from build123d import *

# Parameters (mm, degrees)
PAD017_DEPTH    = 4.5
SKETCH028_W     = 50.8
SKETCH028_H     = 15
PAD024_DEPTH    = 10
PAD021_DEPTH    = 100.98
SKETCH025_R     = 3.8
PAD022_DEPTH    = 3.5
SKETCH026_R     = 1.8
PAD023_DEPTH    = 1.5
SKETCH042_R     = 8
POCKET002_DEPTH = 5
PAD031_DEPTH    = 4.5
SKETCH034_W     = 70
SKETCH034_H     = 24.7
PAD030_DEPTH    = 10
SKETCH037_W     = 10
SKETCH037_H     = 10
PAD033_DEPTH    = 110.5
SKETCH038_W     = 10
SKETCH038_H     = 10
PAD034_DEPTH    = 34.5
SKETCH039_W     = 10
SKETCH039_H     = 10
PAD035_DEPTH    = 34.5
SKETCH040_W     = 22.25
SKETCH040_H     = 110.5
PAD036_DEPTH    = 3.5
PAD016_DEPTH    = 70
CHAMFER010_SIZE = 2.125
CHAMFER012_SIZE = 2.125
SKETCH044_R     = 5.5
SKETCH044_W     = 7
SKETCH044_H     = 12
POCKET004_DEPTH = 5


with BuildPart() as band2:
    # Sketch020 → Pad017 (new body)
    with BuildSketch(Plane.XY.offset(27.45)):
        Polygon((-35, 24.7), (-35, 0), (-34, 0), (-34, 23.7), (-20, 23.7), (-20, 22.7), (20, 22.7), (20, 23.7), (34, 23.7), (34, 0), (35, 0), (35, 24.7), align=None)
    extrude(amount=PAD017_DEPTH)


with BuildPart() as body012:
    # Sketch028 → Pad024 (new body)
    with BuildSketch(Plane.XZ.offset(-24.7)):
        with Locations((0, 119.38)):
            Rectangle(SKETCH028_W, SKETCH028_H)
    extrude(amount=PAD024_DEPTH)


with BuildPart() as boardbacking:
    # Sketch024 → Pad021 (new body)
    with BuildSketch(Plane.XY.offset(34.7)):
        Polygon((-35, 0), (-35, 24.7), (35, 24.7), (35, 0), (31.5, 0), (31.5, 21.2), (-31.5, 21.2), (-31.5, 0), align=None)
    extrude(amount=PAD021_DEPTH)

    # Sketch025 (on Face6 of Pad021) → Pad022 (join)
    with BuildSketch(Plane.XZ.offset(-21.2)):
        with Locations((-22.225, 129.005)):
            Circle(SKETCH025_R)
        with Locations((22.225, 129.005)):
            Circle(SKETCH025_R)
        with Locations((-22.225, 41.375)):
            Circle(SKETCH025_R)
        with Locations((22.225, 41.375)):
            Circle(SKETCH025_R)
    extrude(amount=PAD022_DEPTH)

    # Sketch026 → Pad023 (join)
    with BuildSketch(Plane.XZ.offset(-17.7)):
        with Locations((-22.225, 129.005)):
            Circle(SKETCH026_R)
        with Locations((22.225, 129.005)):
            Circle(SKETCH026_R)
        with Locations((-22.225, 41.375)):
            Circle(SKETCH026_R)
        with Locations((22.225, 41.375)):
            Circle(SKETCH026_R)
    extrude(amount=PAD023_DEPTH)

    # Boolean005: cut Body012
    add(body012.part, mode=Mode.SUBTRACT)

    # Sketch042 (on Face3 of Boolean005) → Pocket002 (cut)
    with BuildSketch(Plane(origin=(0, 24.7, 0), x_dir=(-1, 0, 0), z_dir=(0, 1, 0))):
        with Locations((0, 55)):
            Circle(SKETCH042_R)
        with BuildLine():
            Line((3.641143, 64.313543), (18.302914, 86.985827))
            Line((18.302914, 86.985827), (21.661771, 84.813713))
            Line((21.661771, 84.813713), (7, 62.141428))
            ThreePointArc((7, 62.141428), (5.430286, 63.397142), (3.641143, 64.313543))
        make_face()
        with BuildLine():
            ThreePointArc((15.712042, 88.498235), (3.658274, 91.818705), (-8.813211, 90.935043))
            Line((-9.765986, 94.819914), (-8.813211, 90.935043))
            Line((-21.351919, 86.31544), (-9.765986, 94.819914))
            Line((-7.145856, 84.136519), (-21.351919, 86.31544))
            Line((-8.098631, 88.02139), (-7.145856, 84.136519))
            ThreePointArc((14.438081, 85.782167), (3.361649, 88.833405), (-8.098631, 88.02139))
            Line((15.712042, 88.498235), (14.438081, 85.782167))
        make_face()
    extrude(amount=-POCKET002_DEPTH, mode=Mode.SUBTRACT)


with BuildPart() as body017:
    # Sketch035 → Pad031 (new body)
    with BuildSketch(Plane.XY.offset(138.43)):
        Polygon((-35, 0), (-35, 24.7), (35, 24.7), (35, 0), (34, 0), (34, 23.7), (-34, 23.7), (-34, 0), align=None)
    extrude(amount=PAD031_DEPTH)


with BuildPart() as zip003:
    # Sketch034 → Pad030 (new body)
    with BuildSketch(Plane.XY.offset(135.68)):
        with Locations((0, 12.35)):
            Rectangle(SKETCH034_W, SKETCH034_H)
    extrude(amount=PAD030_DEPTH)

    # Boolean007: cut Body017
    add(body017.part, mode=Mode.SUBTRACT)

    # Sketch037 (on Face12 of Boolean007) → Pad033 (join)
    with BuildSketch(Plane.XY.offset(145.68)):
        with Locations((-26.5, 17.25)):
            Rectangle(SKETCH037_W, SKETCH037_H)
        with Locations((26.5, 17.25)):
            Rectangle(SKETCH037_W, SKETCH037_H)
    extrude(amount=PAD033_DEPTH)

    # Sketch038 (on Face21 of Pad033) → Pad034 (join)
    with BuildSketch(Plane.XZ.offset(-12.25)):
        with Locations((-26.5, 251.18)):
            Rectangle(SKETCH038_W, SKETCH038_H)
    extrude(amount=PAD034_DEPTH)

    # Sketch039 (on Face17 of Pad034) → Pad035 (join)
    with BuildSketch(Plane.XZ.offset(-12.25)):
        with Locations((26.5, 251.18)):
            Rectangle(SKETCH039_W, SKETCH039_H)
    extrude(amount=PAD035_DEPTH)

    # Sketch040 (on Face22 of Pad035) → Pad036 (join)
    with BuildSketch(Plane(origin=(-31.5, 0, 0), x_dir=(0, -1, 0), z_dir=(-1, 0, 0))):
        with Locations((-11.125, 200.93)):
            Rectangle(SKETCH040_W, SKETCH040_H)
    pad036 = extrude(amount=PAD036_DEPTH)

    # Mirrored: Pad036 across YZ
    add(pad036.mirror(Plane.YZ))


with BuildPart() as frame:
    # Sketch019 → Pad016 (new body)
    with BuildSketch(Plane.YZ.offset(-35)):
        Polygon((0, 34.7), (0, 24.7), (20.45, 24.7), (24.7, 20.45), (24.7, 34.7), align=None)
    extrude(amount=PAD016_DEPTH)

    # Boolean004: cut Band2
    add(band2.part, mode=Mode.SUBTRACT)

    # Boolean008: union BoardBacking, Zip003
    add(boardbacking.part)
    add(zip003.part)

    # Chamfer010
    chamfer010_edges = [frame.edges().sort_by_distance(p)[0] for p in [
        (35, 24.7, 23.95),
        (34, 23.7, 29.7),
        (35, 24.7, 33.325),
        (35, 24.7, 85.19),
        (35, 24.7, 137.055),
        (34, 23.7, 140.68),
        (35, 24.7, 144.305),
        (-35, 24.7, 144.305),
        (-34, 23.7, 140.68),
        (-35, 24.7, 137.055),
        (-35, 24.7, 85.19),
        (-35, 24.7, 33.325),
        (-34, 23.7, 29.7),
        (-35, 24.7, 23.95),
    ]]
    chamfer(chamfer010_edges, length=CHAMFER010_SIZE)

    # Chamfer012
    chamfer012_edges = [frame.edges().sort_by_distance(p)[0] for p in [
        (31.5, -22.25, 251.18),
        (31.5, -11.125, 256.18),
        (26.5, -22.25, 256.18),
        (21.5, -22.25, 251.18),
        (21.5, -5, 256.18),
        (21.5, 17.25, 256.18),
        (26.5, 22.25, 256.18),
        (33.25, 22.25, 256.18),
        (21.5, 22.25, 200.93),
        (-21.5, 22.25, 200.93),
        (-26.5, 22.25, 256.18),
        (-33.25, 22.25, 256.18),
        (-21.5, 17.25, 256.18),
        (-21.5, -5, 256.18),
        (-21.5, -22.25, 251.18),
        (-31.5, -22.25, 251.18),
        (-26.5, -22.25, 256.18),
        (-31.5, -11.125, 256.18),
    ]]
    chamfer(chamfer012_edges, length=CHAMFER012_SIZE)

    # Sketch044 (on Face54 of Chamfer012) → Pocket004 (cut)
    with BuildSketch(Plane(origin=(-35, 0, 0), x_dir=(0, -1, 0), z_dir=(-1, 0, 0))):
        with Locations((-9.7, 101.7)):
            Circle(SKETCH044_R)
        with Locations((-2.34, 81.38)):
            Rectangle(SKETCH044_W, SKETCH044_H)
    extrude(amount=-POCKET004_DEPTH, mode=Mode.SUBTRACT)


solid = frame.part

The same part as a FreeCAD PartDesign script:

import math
import FreeCAD as App
import Part
import Sketcher
from FreeCAD import Vector
Q = App.Units.Quantity


def edges_at(feature, points):
    """Names of the edges that pass closest to the given points."""
    edges = feature.Shape.Edges
    near = lambda p: min(range(len(edges)), key=lambda i: edges[i].distToShape(Part.Vertex(*p))[0])
    return sorted({f"Edge{near(p) + 1}" for p in points})

doc = App.newDocument("Part")
body = doc.addObject("PartDesign::Body", "Body")

# Sketch on XY plane
sketch1 = body.newObject("Sketcher::SketchObject", "Sketch")
sketch1.AttachmentSupport = (doc.getObject("XY_Plane"), [""])
sketch1.MapMode = "FlatFace"
sketch1.AttachmentOffset = App.Placement(Vector(0, 0, 27.45), App.Rotation())
sketch1.addGeometry(Part.LineSegment(Vector(-35, 24.7, 0), Vector(-35, 0, 0)), False)
sketch1.addGeometry(Part.LineSegment(Vector(-35, 0, 0), Vector(-34, 0, 0)), False)
sketch1.addGeometry(Part.LineSegment(Vector(-34, 0, 0), Vector(-34, 23.7, 0)), False)
sketch1.addGeometry(Part.LineSegment(Vector(-34, 23.7, 0), Vector(-20, 23.7, 0)), False)
sketch1.addGeometry(Part.LineSegment(Vector(-20, 23.7, 0), Vector(-20, 22.7, 0)), False)
sketch1.addGeometry(Part.LineSegment(Vector(-20, 22.7, 0), Vector(20, 22.7, 0)), False)
sketch1.addGeometry(Part.LineSegment(Vector(20, 22.7, 0), Vector(20, 23.7, 0)), False)
sketch1.addGeometry(Part.LineSegment(Vector(20, 23.7, 0), Vector(34, 23.7, 0)), False)
sketch1.addGeometry(Part.LineSegment(Vector(34, 23.7, 0), Vector(34, 0, 0)), False)
sketch1.addGeometry(Part.LineSegment(Vector(34, 0, 0), Vector(35, 0, 0)), False)
sketch1.addGeometry(Part.LineSegment(Vector(35, 0, 0), Vector(35, 24.7, 0)), False)
sketch1.addGeometry(Part.LineSegment(Vector(35, 24.7, 0), Vector(-35, 24.7, 0)), False)
sketch1.addConstraint(Sketcher.Constraint("Coincident", 0, 2, 1, 1))
sketch1.addConstraint(Sketcher.Constraint("Coincident", 1, 2, 2, 1))
sketch1.addConstraint(Sketcher.Constraint("Coincident", 2, 2, 3, 1))
sketch1.addConstraint(Sketcher.Constraint("Coincident", 3, 2, 4, 1))
sketch1.addConstraint(Sketcher.Constraint("Coincident", 4, 2, 5, 1))
sketch1.addConstraint(Sketcher.Constraint("Coincident", 5, 2, 6, 1))
sketch1.addConstraint(Sketcher.Constraint("Coincident", 6, 2, 7, 1))
sketch1.addConstraint(Sketcher.Constraint("Coincident", 7, 2, 8, 1))
sketch1.addConstraint(Sketcher.Constraint("Coincident", 8, 2, 9, 1))
sketch1.addConstraint(Sketcher.Constraint("Coincident", 9, 2, 10, 1))
sketch1.addConstraint(Sketcher.Constraint("Coincident", 10, 2, 11, 1))
sketch1.addConstraint(Sketcher.Constraint("Coincident", 11, 2, 0, 1))
sketch1.addConstraint(Sketcher.Constraint("Vertical", 0))
sketch1.addConstraint(Sketcher.Constraint("Horizontal", 1))
sketch1.addConstraint(Sketcher.Constraint("Vertical", 2))
sketch1.addConstraint(Sketcher.Constraint("Horizontal", 3))
sketch1.addConstraint(Sketcher.Constraint("Vertical", 4))
sketch1.addConstraint(Sketcher.Constraint("Horizontal", 5))
sketch1.addConstraint(Sketcher.Constraint("Vertical", 6))
sketch1.addConstraint(Sketcher.Constraint("Horizontal", 7))
sketch1.addConstraint(Sketcher.Constraint("Vertical", 8))
sketch1.addConstraint(Sketcher.Constraint("Horizontal", 9))
sketch1.addConstraint(Sketcher.Constraint("Vertical", 10))
sketch1.addConstraint(Sketcher.Constraint("Horizontal", 11))
sketch1.addConstraint(Sketcher.Constraint("Symmetric", 1, 2, 8, 2, -1, 1))
sketch1.addConstraint(Sketcher.Constraint("Symmetric", 3, 2, 6, 2, -2))
sketch1.addConstraint(Sketcher.Constraint("Symmetric", 0, 2, 9, 2, -2))
sketch1.addConstraint(Sketcher.Constraint("Equal", 9, 4))
sketch1.addConstraint(Sketcher.Constraint("DistanceX", 1, 1, 1, 2, Q("1 mm")))
sketch1.addConstraint(Sketcher.Constraint("DistanceX", 3, 1, 3, 2, Q("14 mm")))
sketch1.addConstraint(Sketcher.Constraint("DistanceX", 5, 1, 5, 2, Q("40 mm")))
sketch1.addConstraint(Sketcher.Constraint("DistanceY", 0, 2, 0, 1, Q("24.7 mm")))
sketch1.addConstraint(Sketcher.Constraint("DistanceY", 2, 1, 2, 2, Q("23.7 mm")))
pad1 = body.newObject("PartDesign::Pad", "Pad")
pad1.Profile = sketch1
pad1.Length = 4.5
body2 = doc.addObject("PartDesign::Body", "Body001")

# Sketch on XZ plane
sketch2 = body2.newObject("Sketcher::SketchObject", "Sketch001")
sketch2.AttachmentSupport = (doc.getObject("XZ_Plane001"), [""])
sketch2.MapMode = "FlatFace"
sketch2.AttachmentOffset = App.Placement(Vector(0, 0, -24.7), App.Rotation())
sketch2.addGeometry(Part.LineSegment(Vector(-25, 127, 0), Vector(-25, 112, 0)), False)
sketch2.addGeometry(Part.LineSegment(Vector(-25, 112, 0), Vector(25, 112, 0)), False)
sketch2.addGeometry(Part.LineSegment(Vector(25, 112, 0), Vector(25, 127, 0)), False)
sketch2.addGeometry(Part.LineSegment(Vector(25, 127, 0), Vector(-25, 127, 0)), False)
sketch2.addConstraint(Sketcher.Constraint("Coincident", 0, 2, 1, 1))
sketch2.addConstraint(Sketcher.Constraint("Coincident", 1, 2, 2, 1))
sketch2.addConstraint(Sketcher.Constraint("Coincident", 2, 2, 3, 1))
sketch2.addConstraint(Sketcher.Constraint("Coincident", 3, 2, 0, 1))
sketch2.addConstraint(Sketcher.Constraint("Vertical", 0))
sketch2.addConstraint(Sketcher.Constraint("Horizontal", 1))
sketch2.addConstraint(Sketcher.Constraint("Vertical", 2))
sketch2.addConstraint(Sketcher.Constraint("Horizontal", 3))
sketch2.addConstraint(Sketcher.Constraint("DistanceY", 0, 2, 0, 1, Q("15 mm")))
sketch2.addConstraint(Sketcher.Constraint("DistanceX", 1, 1, 1, 2, Q("50.8 mm")))
sketch2.addConstraint(Sketcher.Constraint("DistanceX", 0, 2, -1, 1, Q("25.4 mm")))
sketch2.addConstraint(Sketcher.Constraint("DistanceY", -1, 1, 0, 2, Q("111.88 mm")))
pad2 = body2.newObject("PartDesign::Pad", "Pad001")
pad2.Profile = sketch2
pad2.Length = 10
body3 = doc.addObject("PartDesign::Body", "Body002")

# Sketch on XY plane
sketch3 = body3.newObject("Sketcher::SketchObject", "Sketch002")
sketch3.AttachmentSupport = (doc.getObject("XY_Plane002"), [""])
sketch3.MapMode = "FlatFace"
sketch3.AttachmentOffset = App.Placement(Vector(0, 0, 34.7), App.Rotation())
sketch3.addGeometry(Part.LineSegment(Vector(-35, 24.7, 0), Vector(-35, 0, 0)), False)
sketch3.addGeometry(Part.LineSegment(Vector(-35, 0, 0), Vector(-31.5, 0, 0)), False)
sketch3.addGeometry(Part.LineSegment(Vector(-31.5, 0, 0), Vector(-31.5, 21.2, 0)), False)
sketch3.addGeometry(Part.LineSegment(Vector(-31.5, 21.2, 0), Vector(31.5, 21.2, 0)), False)
sketch3.addGeometry(Part.LineSegment(Vector(31.5, 21.2, 0), Vector(31.5, 0, 0)), False)
sketch3.addGeometry(Part.LineSegment(Vector(31.5, 0, 0), Vector(35, 0, 0)), False)
sketch3.addGeometry(Part.LineSegment(Vector(35, 0, 0), Vector(35, 24.7, 0)), False)
sketch3.addGeometry(Part.LineSegment(Vector(35, 24.7, 0), Vector(-35, 24.7, 0)), False)
sketch3.addConstraint(Sketcher.Constraint("Coincident", 0, 2, 1, 1))
sketch3.addConstraint(Sketcher.Constraint("Coincident", 1, 2, 2, 1))
sketch3.addConstraint(Sketcher.Constraint("Coincident", 2, 2, 3, 1))
sketch3.addConstraint(Sketcher.Constraint("Coincident", 3, 2, 4, 1))
sketch3.addConstraint(Sketcher.Constraint("Coincident", 4, 2, 5, 1))
sketch3.addConstraint(Sketcher.Constraint("Coincident", 5, 2, 6, 1))
sketch3.addConstraint(Sketcher.Constraint("Coincident", 6, 2, 7, 1))
sketch3.addConstraint(Sketcher.Constraint("Coincident", 7, 2, 0, 1))
sketch3.addConstraint(Sketcher.Constraint("Vertical", 0))
sketch3.addConstraint(Sketcher.Constraint("Horizontal", 1))
sketch3.addConstraint(Sketcher.Constraint("Vertical", 2))
sketch3.addConstraint(Sketcher.Constraint("Horizontal", 3))
sketch3.addConstraint(Sketcher.Constraint("Vertical", 4))
sketch3.addConstraint(Sketcher.Constraint("Horizontal", 5))
sketch3.addConstraint(Sketcher.Constraint("Vertical", 6))
sketch3.addConstraint(Sketcher.Constraint("Horizontal", 7))
sketch3.addConstraint(Sketcher.Constraint("Symmetric", 1, 2, 4, 2, -1, 1))
sketch3.addConstraint(Sketcher.Constraint("Symmetric", 0, 2, 5, 2, -2))
sketch3.addConstraint(Sketcher.Constraint("DistanceX", 3, 1, 3, 2, Q("63 mm")))
sketch3.addConstraint(Sketcher.Constraint("DistanceX", 7, 2, 7, 1, Q("70 mm")))
sketch3.addConstraint(Sketcher.Constraint("DistanceY", 0, 2, 0, 1, Q("24.7 mm")))
sketch3.addConstraint(Sketcher.Constraint("DistanceY", 2, 1, 2, 2, Q("21.2 mm")))
pad3 = body3.newObject("PartDesign::Pad", "Pad002")
pad3.Profile = sketch3
pad3.Length = 100.98

# Sketch on XZ plane
sketch4 = body3.newObject("Sketcher::SketchObject", "Sketch003")
sketch4.AttachmentSupport = (doc.getObject("XZ_Plane002"), [""])
sketch4.MapMode = "FlatFace"
sketch4.AttachmentOffset = App.Placement(Vector(0, 0, -21.2), App.Rotation())
sketch4.addGeometry(Part.Circle(Vector(-22.2, 129, 0), Vector(0, 0, 1), 3.8), False)
sketch4.addGeometry(Part.Circle(Vector(22.2, 129, 0), Vector(0, 0, 1), 3.8), False)
sketch4.addGeometry(Part.Circle(Vector(-22.2, 41.4, 0), Vector(0, 0, 1), 3.8), False)
sketch4.addGeometry(Part.Circle(Vector(22.2, 41.4, 0), Vector(0, 0, 1), 3.8), False)
sketch4.addConstraint(Sketcher.Constraint("Equal", 0, 1))
sketch4.addConstraint(Sketcher.Constraint("Equal", 1, 2))
sketch4.addConstraint(Sketcher.Constraint("Equal", 2, 3))
sketch4.addConstraint(Sketcher.Constraint("Symmetric", 0, 3, 1, 3, -2))
sketch4.addConstraint(Sketcher.Constraint("Symmetric", 2, 3, 3, 3, -2))
sketch4.addConstraint(Sketcher.Constraint("Vertical", 0, 3, 2, 3))
sketch4.addConstraint(Sketcher.Constraint("Diameter", 0, Q("7.6 mm")))
sketch4.addConstraint(Sketcher.Constraint("DistanceX", 0, 3, 1, 3, Q("44.45 mm")))
sketch4.addConstraint(Sketcher.Constraint("DistanceY", 2, 3, 0, 3, Q("87.63 mm")))
sketch4.addConstraint(Sketcher.Constraint("DistanceY", -1, 1, 0, 3, Q("129.005 mm")))
pad4 = body3.newObject("PartDesign::Pad", "Pad003")
pad4.Profile = sketch4
pad4.Length = 3.5

# Sketch on XZ plane
sketch5 = body3.newObject("Sketcher::SketchObject", "Sketch004")
sketch5.AttachmentSupport = (doc.getObject("XZ_Plane002"), [""])
sketch5.MapMode = "FlatFace"
sketch5.AttachmentOffset = App.Placement(Vector(0, 0, -17.7), App.Rotation())
sketch5.addGeometry(Part.Circle(Vector(-22.2, 129, 0), Vector(0, 0, 1), 1.8), False)
sketch5.addGeometry(Part.Circle(Vector(22.2, 129, 0), Vector(0, 0, 1), 1.8), False)
sketch5.addGeometry(Part.Circle(Vector(-22.2, 41.4, 0), Vector(0, 0, 1), 1.8), False)
sketch5.addGeometry(Part.Circle(Vector(22.2, 41.4, 0), Vector(0, 0, 1), 1.8), False)
sketch5.addConstraint(Sketcher.Constraint("Equal", 0, 1))
sketch5.addConstraint(Sketcher.Constraint("Equal", 1, 2))
sketch5.addConstraint(Sketcher.Constraint("Equal", 2, 3))
sketch5.addConstraint(Sketcher.Constraint("Symmetric", 0, 3, 1, 3, -2))
sketch5.addConstraint(Sketcher.Constraint("Symmetric", 2, 3, 3, 3, -2))
sketch5.addConstraint(Sketcher.Constraint("Vertical", 0, 3, 2, 3))
sketch5.addConstraint(Sketcher.Constraint("Diameter", 0, Q("3.6 mm")))
sketch5.addConstraint(Sketcher.Constraint("DistanceX", 0, 3, 1, 3, Q("44.45 mm")))
sketch5.addConstraint(Sketcher.Constraint("DistanceY", 2, 3, 0, 3, Q("87.63 mm")))
sketch5.addConstraint(Sketcher.Constraint("DistanceY", -1, 1, 0, 3, Q("129.005 mm")))
pad5 = body3.newObject("PartDesign::Pad", "Pad004")
pad5.Profile = sketch5
pad5.Length = 1.5
doc.recompute()

boolean = body3.newObject("PartDesign::Boolean", "Boolean")
boolean.Type = "Cut"
boolean.addObjects([body2])

# Sketch on XZ plane
sketch6 = body3.newObject("Sketcher::SketchObject", "Sketch005")
sketch6.AttachmentSupport = (doc.getObject("XZ_Plane002"), [""])
sketch6.MapMode = "FlatFace"
sketch6.AttachmentOffset = App.Placement(Vector(0, 0, -24.7), App.Rotation())
sketch6.addGeometry(Part.Circle(Vector(0, 55, 0), Vector(0, 0, 1), 8), False)
sketch6.addGeometry(Part.LineSegment(Vector(-18.3, 87, 0), Vector(-3.6, 64.3, 0)), False)
sketch6.addGeometry(Part.ArcOfCircle(Part.Circle(Vector(0, 55, 0), Vector(0, 0, 1), 10), math.radians(111), math.radians(134)), False)
sketch6.addGeometry(Part.LineSegment(Vector(-7, 62.1, 0), Vector(-21.7, 84.8, 0)), False)
sketch6.addGeometry(Part.LineSegment(Vector(-21.7, 84.8, 0), Vector(-18.3, 87, 0)), False)
sketch6.addGeometry(Part.ArcOfCircle(Part.Circle(Vector(0, 55, 0), Vector(0, 0, 1), 37), math.radians(76), math.radians(115)), False)
sketch6.addGeometry(Part.LineSegment(Vector(8.8, 90.9, 0), Vector(9.8, 94.8, 0)), False)
sketch6.addGeometry(Part.LineSegment(Vector(9.8, 94.8, 0), Vector(21.4, 86.3, 0)), False)
sketch6.addGeometry(Part.LineSegment(Vector(21.4, 86.3, 0), Vector(7.1, 84.1, 0)), False)
sketch6.addGeometry(Part.LineSegment(Vector(7.1, 84.1, 0), Vector(8.1, 88, 0)), False)
sketch6.addGeometry(Part.ArcOfCircle(Part.Circle(Vector(0, 55, 0), Vector(0, 0, 1), 34), math.radians(76), math.radians(115)), False)
sketch6.addGeometry(Part.LineSegment(Vector(-14.4, 85.8, 0), Vector(-15.7, 88.5, 0)), False)
sketch6.addConstraint(Sketcher.Constraint("Coincident", 1, 2, 2, 1))
sketch6.addConstraint(Sketcher.Constraint("Coincident", 2, 2, 3, 1))
sketch6.addConstraint(Sketcher.Constraint("Coincident", 3, 2, 4, 1))
sketch6.addConstraint(Sketcher.Constraint("Coincident", 4, 2, 1, 1))
sketch6.addConstraint(Sketcher.Constraint("Coincident", 5, 1, 6, 1))
sketch6.addConstraint(Sketcher.Constraint("Coincident", 6, 2, 7, 1))
sketch6.addConstraint(Sketcher.Constraint("Coincident", 7, 2, 8, 1))
sketch6.addConstraint(Sketcher.Constraint("Coincident", 8, 2, 9, 1))
sketch6.addConstraint(Sketcher.Constraint("Coincident", 9, 2, 10, 1))
sketch6.addConstraint(Sketcher.Constraint("Coincident", 10, 2, 11, 1))
sketch6.addConstraint(Sketcher.Constraint("Coincident", 11, 2, 5, 2))
sketch6.addConstraint(Sketcher.Constraint("Coincident", 2, 3, 0, 3))
sketch6.addConstraint(Sketcher.Constraint("Coincident", 5, 3, 0, 3))
sketch6.addConstraint(Sketcher.Constraint("Coincident", 10, 3, 0, 3))
sketch6.addConstraint(Sketcher.Constraint("PointOnObject", 0, 3, -2))
sketch6.addConstraint(Sketcher.Constraint("Parallel", 1, 3))
sketch6.addConstraint(Sketcher.Constraint("Perpendicular", 3, 4))
sketch6.addConstraint(Sketcher.Constraint("Parallel", 6, 9))
sketch6.addConstraint(Sketcher.Constraint("Equal", 1, 3))
sketch6.addConstraint(Sketcher.Constraint("Equal", 4, 6))
sketch6.addConstraint(Sketcher.Constraint("Equal", 7, 8))
sketch6.addConstraint(Sketcher.Constraint("Equal", 6, 9))
sketch6.addConstraint(Sketcher.Constraint("Diameter", 0, Q("16 mm")))
sketch6.addConstraint(Sketcher.Constraint("Radius", 2, Q("10 mm")))
sketch6.addConstraint(Sketcher.Constraint("Radius", 5, Q("37 mm")))
sketch6.addConstraint(Sketcher.Constraint("Distance", 1, Q("27 mm")))
sketch6.addConstraint(Sketcher.Constraint("Distance", 4, Q("4 mm")))
sketch6.addConstraint(Sketcher.Constraint("Distance", 11, Q("3 mm")))
sketch6.addConstraint(Sketcher.Constraint("DistanceY", -1, 1, 0, 3, Q("55 mm")))
sketch6.addConstraint(Sketcher.Constraint("DistanceX", 2, 2, -1, 1, Q("7 mm")))
sketch6.addConstraint(Sketcher.Constraint("DistanceX", 1, 2, 8, 2, Q("10.786999 mm")))
sketch6.addConstraint(Sketcher.Constraint("DistanceY", 1, 2, 5, 1, Q("26.6215 mm")))
sketch6.addConstraint(Sketcher.Constraint("DistanceX", 4, 2, 6, 2, Q("28.0689 mm")))
sketch6.addConstraint(Sketcher.Constraint("DistanceX", -1, 1, 7, 2, Q("21.351919 mm")))
sketch6.addConstraint(Sketcher.Constraint("DistanceX", 10, 2, -1, 1, Q("14.438081 mm")))
sketch6.addConstraint(Sketcher.Constraint("DistanceX", 11, 2, 10, 2, Q("1.273961 mm")))
pocket1 = body3.newObject("PartDesign::Pocket", "Pocket")
pocket1.Profile = sketch6
pocket1.Length = 5
pocket1.Reversed = True
body4 = doc.addObject("PartDesign::Body", "Body003")

# Sketch on XY plane
sketch7 = body4.newObject("Sketcher::SketchObject", "Sketch006")
sketch7.AttachmentSupport = (doc.getObject("XY_Plane003"), [""])
sketch7.MapMode = "FlatFace"
sketch7.AttachmentOffset = App.Placement(Vector(0, 0, 138.43), App.Rotation())
sketch7.addGeometry(Part.LineSegment(Vector(-35, 24.7, 0), Vector(-35, 0, 0)), False)
sketch7.addGeometry(Part.LineSegment(Vector(-35, 0, 0), Vector(-34, 0, 0)), False)
sketch7.addGeometry(Part.LineSegment(Vector(-34, 0, 0), Vector(-34, 23.7, 0)), False)
sketch7.addGeometry(Part.LineSegment(Vector(-34, 23.7, 0), Vector(34, 23.7, 0)), False)
sketch7.addGeometry(Part.LineSegment(Vector(34, 23.7, 0), Vector(34, 0, 0)), False)
sketch7.addGeometry(Part.LineSegment(Vector(34, 0, 0), Vector(35, 0, 0)), False)
sketch7.addGeometry(Part.LineSegment(Vector(35, 0, 0), Vector(35, 24.7, 0)), False)
sketch7.addGeometry(Part.LineSegment(Vector(35, 24.7, 0), Vector(-35, 24.7, 0)), False)
sketch7.addConstraint(Sketcher.Constraint("Coincident", 0, 2, 1, 1))
sketch7.addConstraint(Sketcher.Constraint("Coincident", 1, 2, 2, 1))
sketch7.addConstraint(Sketcher.Constraint("Coincident", 2, 2, 3, 1))
sketch7.addConstraint(Sketcher.Constraint("Coincident", 3, 2, 4, 1))
sketch7.addConstraint(Sketcher.Constraint("Coincident", 4, 2, 5, 1))
sketch7.addConstraint(Sketcher.Constraint("Coincident", 5, 2, 6, 1))
sketch7.addConstraint(Sketcher.Constraint("Coincident", 6, 2, 7, 1))
sketch7.addConstraint(Sketcher.Constraint("Coincident", 7, 2, 0, 1))
sketch7.addConstraint(Sketcher.Constraint("Vertical", 0))
sketch7.addConstraint(Sketcher.Constraint("Horizontal", 1))
sketch7.addConstraint(Sketcher.Constraint("Vertical", 2))
sketch7.addConstraint(Sketcher.Constraint("Horizontal", 3))
sketch7.addConstraint(Sketcher.Constraint("Vertical", 4))
sketch7.addConstraint(Sketcher.Constraint("Horizontal", 5))
sketch7.addConstraint(Sketcher.Constraint("Vertical", 6))
sketch7.addConstraint(Sketcher.Constraint("Horizontal", 7))
sketch7.addConstraint(Sketcher.Constraint("Symmetric", 1, 2, 4, 2, -1, 1))
sketch7.addConstraint(Sketcher.Constraint("Symmetric", 0, 2, 5, 2, -2))
sketch7.addConstraint(Sketcher.Constraint("DistanceX", 1, 1, 1, 2, Q("1 mm")))
sketch7.addConstraint(Sketcher.Constraint("DistanceX", 3, 1, 3, 2, Q("68 mm")))
sketch7.addConstraint(Sketcher.Constraint("DistanceY", 0, 2, 0, 1, Q("24.7 mm")))
sketch7.addConstraint(Sketcher.Constraint("DistanceY", 2, 1, 2, 2, Q("23.7 mm")))
pad6 = body4.newObject("PartDesign::Pad", "Pad005")
pad6.Profile = sketch7
pad6.Length = 4.5
body5 = doc.addObject("PartDesign::Body", "Body004")

# Sketch on XY plane
sketch8 = body5.newObject("Sketcher::SketchObject", "Sketch007")
sketch8.AttachmentSupport = (doc.getObject("XY_Plane004"), [""])
sketch8.MapMode = "FlatFace"
sketch8.AttachmentOffset = App.Placement(Vector(0, 0, 135.68), App.Rotation())
sketch8.addGeometry(Part.LineSegment(Vector(-35, 25, 0), Vector(-35, 0, 0)), False)
sketch8.addGeometry(Part.LineSegment(Vector(-35, 0, 0), Vector(35, 0, 0)), False)
sketch8.addGeometry(Part.LineSegment(Vector(35, 0, 0), Vector(35, 25, 0)), False)
sketch8.addGeometry(Part.LineSegment(Vector(35, 25, 0), Vector(-35, 25, 0)), False)
sketch8.addConstraint(Sketcher.Constraint("Coincident", 0, 2, 1, 1))
sketch8.addConstraint(Sketcher.Constraint("Coincident", 1, 2, 2, 1))
sketch8.addConstraint(Sketcher.Constraint("Coincident", 2, 2, 3, 1))
sketch8.addConstraint(Sketcher.Constraint("Coincident", 3, 2, 0, 1))
sketch8.addConstraint(Sketcher.Constraint("Vertical", 0))
sketch8.addConstraint(Sketcher.Constraint("Horizontal", 1))
sketch8.addConstraint(Sketcher.Constraint("Vertical", 2))
sketch8.addConstraint(Sketcher.Constraint("Horizontal", 3))
sketch8.addConstraint(Sketcher.Constraint("Symmetric", 0, 2, 1, 2, -1, 1))
sketch8.addConstraint(Sketcher.Constraint("DistanceX", 1, 1, 1, 2, Q("70 mm")))
sketch8.addConstraint(Sketcher.Constraint("DistanceY", 0, 2, 0, 1, Q("24.7 mm")))
pad7 = body5.newObject("PartDesign::Pad", "Pad006")
pad7.Profile = sketch8
pad7.Length = 10
doc.recompute()

boolean2 = body5.newObject("PartDesign::Boolean", "Boolean001")
boolean2.Type = "Cut"
boolean2.addObjects([body4])

# Sketch on XY plane
sketch9 = body5.newObject("Sketcher::SketchObject", "Sketch008")
sketch9.AttachmentSupport = (doc.getObject("XY_Plane004"), [""])
sketch9.MapMode = "FlatFace"
sketch9.AttachmentOffset = App.Placement(Vector(0, 0, 145.68), App.Rotation())
sketch9.addGeometry(Part.LineSegment(Vector(-32, 22, 0), Vector(-32, 12, 0)), False)
sketch9.addGeometry(Part.LineSegment(Vector(-32, 12, 0), Vector(-22, 12, 0)), False)
sketch9.addGeometry(Part.LineSegment(Vector(-22, 12, 0), Vector(-22, 22, 0)), False)
sketch9.addGeometry(Part.LineSegment(Vector(-22, 22, 0), Vector(-32, 22, 0)), False)
sketch9.addGeometry(Part.LineSegment(Vector(22, 22, 0), Vector(22, 12, 0)), False)
sketch9.addGeometry(Part.LineSegment(Vector(22, 12, 0), Vector(32, 12, 0)), False)
sketch9.addGeometry(Part.LineSegment(Vector(32, 12, 0), Vector(32, 22, 0)), False)
sketch9.addGeometry(Part.LineSegment(Vector(32, 22, 0), Vector(22, 22, 0)), False)
sketch9.addConstraint(Sketcher.Constraint("Coincident", 0, 2, 1, 1))
sketch9.addConstraint(Sketcher.Constraint("Coincident", 1, 2, 2, 1))
sketch9.addConstraint(Sketcher.Constraint("Coincident", 2, 2, 3, 1))
sketch9.addConstraint(Sketcher.Constraint("Coincident", 3, 2, 0, 1))
sketch9.addConstraint(Sketcher.Constraint("Coincident", 4, 2, 5, 1))
sketch9.addConstraint(Sketcher.Constraint("Coincident", 5, 2, 6, 1))
sketch9.addConstraint(Sketcher.Constraint("Coincident", 6, 2, 7, 1))
sketch9.addConstraint(Sketcher.Constraint("Coincident", 7, 2, 4, 1))
sketch9.addConstraint(Sketcher.Constraint("Vertical", 0))
sketch9.addConstraint(Sketcher.Constraint("Horizontal", 1))
sketch9.addConstraint(Sketcher.Constraint("Vertical", 2))
sketch9.addConstraint(Sketcher.Constraint("Horizontal", 3))
sketch9.addConstraint(Sketcher.Constraint("Vertical", 4))
sketch9.addConstraint(Sketcher.Constraint("Horizontal", 5))
sketch9.addConstraint(Sketcher.Constraint("Vertical", 6))
sketch9.addConstraint(Sketcher.Constraint("Horizontal", 7))
sketch9.addConstraint(Sketcher.Constraint("Symmetric", 1, 2, 4, 2, -2))
sketch9.addConstraint(Sketcher.Constraint("Symmetric", 3, 2, 6, 2, -2))
sketch9.addConstraint(Sketcher.Constraint("Equal", 7, 0))
sketch9.addConstraint(Sketcher.Constraint("DistanceX", 1, 1, 1, 2, Q("10 mm")))
sketch9.addConstraint(Sketcher.Constraint("DistanceX", 1, 2, 4, 2, Q("43 mm")))
sketch9.addConstraint(Sketcher.Constraint("DistanceY", -1, 1, 0, 2, Q("12.25 mm")))
pad8 = body5.newObject("PartDesign::Pad", "Pad007")
pad8.Profile = sketch9
pad8.Length = 110.5

# Sketch on XZ plane
sketch10 = body5.newObject("Sketcher::SketchObject", "Sketch009")
sketch10.AttachmentSupport = (doc.getObject("XZ_Plane004"), [""])
sketch10.MapMode = "FlatFace"
sketch10.AttachmentOffset = App.Placement(Vector(0, 0, -12.25), App.Rotation())
sketch10.addGeometry(Part.LineSegment(Vector(-32, 256, 0), Vector(-32, 246, 0)), False)
sketch10.addGeometry(Part.LineSegment(Vector(-32, 246, 0), Vector(-22, 246, 0)), False)
sketch10.addGeometry(Part.LineSegment(Vector(-22, 246, 0), Vector(-22, 256, 0)), False)
sketch10.addGeometry(Part.LineSegment(Vector(-22, 256, 0), Vector(-32, 256, 0)), False)
sketch10.addConstraint(Sketcher.Constraint("Coincident", 0, 2, 1, 1))
sketch10.addConstraint(Sketcher.Constraint("Coincident", 1, 2, 2, 1))
sketch10.addConstraint(Sketcher.Constraint("Coincident", 2, 2, 3, 1))
sketch10.addConstraint(Sketcher.Constraint("Coincident", 3, 2, 0, 1))
sketch10.addConstraint(Sketcher.Constraint("Vertical", 0))
sketch10.addConstraint(Sketcher.Constraint("Horizontal", 1))
sketch10.addConstraint(Sketcher.Constraint("Vertical", 2))
sketch10.addConstraint(Sketcher.Constraint("Horizontal", 3))
sketch10.addConstraint(Sketcher.Constraint("Equal", 3, 0))
sketch10.addConstraint(Sketcher.Constraint("DistanceX", 1, 1, 1, 2, Q("10 mm")))
sketch10.addConstraint(Sketcher.Constraint("DistanceX", 0, 2, -1, 1, Q("31.5 mm")))
sketch10.addConstraint(Sketcher.Constraint("DistanceY", -1, 1, 0, 2, Q("246.18 mm")))
pad9 = body5.newObject("PartDesign::Pad", "Pad008")
pad9.Profile = sketch10
pad9.Length = 34.5

# Sketch on XZ plane
sketch11 = body5.newObject("Sketcher::SketchObject", "Sketch010")
sketch11.AttachmentSupport = (doc.getObject("XZ_Plane004"), [""])
sketch11.MapMode = "FlatFace"
sketch11.AttachmentOffset = App.Placement(Vector(0, 0, -12.25), App.Rotation())
sketch11.addGeometry(Part.LineSegment(Vector(22, 256, 0), Vector(22, 246, 0)), False)
sketch11.addGeometry(Part.LineSegment(Vector(22, 246, 0), Vector(32, 246, 0)), False)
sketch11.addGeometry(Part.LineSegment(Vector(32, 246, 0), Vector(32, 256, 0)), False)
sketch11.addGeometry(Part.LineSegment(Vector(32, 256, 0), Vector(22, 256, 0)), False)
sketch11.addConstraint(Sketcher.Constraint("Coincident", 0, 2, 1, 1))
sketch11.addConstraint(Sketcher.Constraint("Coincident", 1, 2, 2, 1))
sketch11.addConstraint(Sketcher.Constraint("Coincident", 2, 2, 3, 1))
sketch11.addConstraint(Sketcher.Constraint("Coincident", 3, 2, 0, 1))
sketch11.addConstraint(Sketcher.Constraint("Vertical", 0))
sketch11.addConstraint(Sketcher.Constraint("Horizontal", 1))
sketch11.addConstraint(Sketcher.Constraint("Vertical", 2))
sketch11.addConstraint(Sketcher.Constraint("Horizontal", 3))
sketch11.addConstraint(Sketcher.Constraint("Equal", 3, 0))
sketch11.addConstraint(Sketcher.Constraint("DistanceX", 1, 1, 1, 2, Q("10 mm")))
sketch11.addConstraint(Sketcher.Constraint("DistanceX", -1, 1, 0, 2, Q("21.5 mm")))
sketch11.addConstraint(Sketcher.Constraint("DistanceY", -1, 1, 0, 2, Q("246.18 mm")))
pad10 = body5.newObject("PartDesign::Pad", "Pad009")
pad10.Profile = sketch11
pad10.Length = 34.5

# Sketch on YZ plane
sketch12 = body5.newObject("Sketcher::SketchObject", "Sketch011")
sketch12.AttachmentSupport = (doc.getObject("YZ_Plane004"), [""])
sketch12.MapMode = "FlatFace"
sketch12.AttachmentOffset = App.Placement(Vector(0, 0, -31.5), App.Rotation())
sketch12.addGeometry(Part.LineSegment(Vector(22, 256, 0), Vector(22, 146, 0)), False)
sketch12.addGeometry(Part.LineSegment(Vector(22, 146, 0), Vector(0, 146, 0)), False)
sketch12.addGeometry(Part.LineSegment(Vector(0, 146, 0), Vector(0, 256, 0)), False)
sketch12.addGeometry(Part.LineSegment(Vector(0, 256, 0), Vector(22, 256, 0)), False)
sketch12.addConstraint(Sketcher.Constraint("Coincident", 0, 2, 1, 1))
sketch12.addConstraint(Sketcher.Constraint("Coincident", 1, 2, 2, 1))
sketch12.addConstraint(Sketcher.Constraint("Coincident", 2, 2, 3, 1))
sketch12.addConstraint(Sketcher.Constraint("Coincident", 3, 2, 0, 1))
sketch12.addConstraint(Sketcher.Constraint("Vertical", 0))
sketch12.addConstraint(Sketcher.Constraint("Horizontal", 1))
sketch12.addConstraint(Sketcher.Constraint("Vertical", 2))
sketch12.addConstraint(Sketcher.Constraint("Horizontal", 3))
sketch12.addConstraint(Sketcher.Constraint("PointOnObject", 1, 2, -2))
sketch12.addConstraint(Sketcher.Constraint("DistanceY", 0, 2, 0, 1, Q("110.5 mm")))
sketch12.addConstraint(Sketcher.Constraint("DistanceX", 1, 2, 1, 1, Q("22.25 mm")))
sketch12.addConstraint(Sketcher.Constraint("DistanceY", -1, 1, 0, 2, Q("145.68 mm")))
pad11 = body5.newObject("PartDesign::Pad", "Pad010")
pad11.Profile = sketch12
pad11.Length = 3.5
pad11.Reversed = True
doc.recompute()

mirrored = body5.newObject("PartDesign::Mirrored", "Mirrored")
mirrored.Originals = [pad11]
mirrored.MirrorPlane = (doc.getObject("YZ_Plane004"), [""])
body5.Tip = mirrored
body6 = doc.addObject("PartDesign::Body", "Body005")

# Sketch on YZ plane
sketch13 = body6.newObject("Sketcher::SketchObject", "Sketch012")
sketch13.AttachmentSupport = (doc.getObject("YZ_Plane005"), [""])
sketch13.MapMode = "FlatFace"
sketch13.AttachmentOffset = App.Placement(Vector(0, 0, -35), App.Rotation())
sketch13.addGeometry(Part.LineSegment(Vector(0, 35, 0), Vector(0, 25, 0)), False)
sketch13.addGeometry(Part.LineSegment(Vector(0, 25, 0), Vector(20, 25, 0)), False)
sketch13.addGeometry(Part.LineSegment(Vector(20, 25, 0), Vector(25, 20, 0)), False)
sketch13.addGeometry(Part.LineSegment(Vector(25, 20, 0), Vector(25, 35, 0)), False)
sketch13.addGeometry(Part.LineSegment(Vector(25, 35, 0), Vector(0, 35, 0)), False)
sketch13.addConstraint(Sketcher.Constraint("Coincident", 0, 2, 1, 1))
sketch13.addConstraint(Sketcher.Constraint("Coincident", 1, 2, 2, 1))
sketch13.addConstraint(Sketcher.Constraint("Coincident", 2, 2, 3, 1))
sketch13.addConstraint(Sketcher.Constraint("Coincident", 3, 2, 4, 1))
sketch13.addConstraint(Sketcher.Constraint("Coincident", 4, 2, 0, 1))
sketch13.addConstraint(Sketcher.Constraint("Vertical", 0))
sketch13.addConstraint(Sketcher.Constraint("Horizontal", 1))
sketch13.addConstraint(Sketcher.Constraint("Vertical", 3))
sketch13.addConstraint(Sketcher.Constraint("Horizontal", 4))
sketch13.addConstraint(Sketcher.Constraint("PointOnObject", 0, 2, -2))
sketch13.addConstraint(Sketcher.Constraint("DistanceY", 0, 2, 0, 1, Q("10 mm")))
sketch13.addConstraint(Sketcher.Constraint("Angle", 2, Q("-45 deg")))
sketch13.addConstraint(Sketcher.Constraint("DistanceX", 4, 2, 4, 1, Q("24.7 mm")))
sketch13.addConstraint(Sketcher.Constraint("DistanceX", 1, 1, 1, 2, Q("20.45 mm")))
sketch13.addConstraint(Sketcher.Constraint("DistanceY", -1, 1, 0, 2, Q("24.7 mm")))
pad12 = body6.newObject("PartDesign::Pad", "Pad011")
pad12.Profile = sketch13
pad12.Length = 70
doc.recompute()

boolean3 = body6.newObject("PartDesign::Boolean", "Boolean002")
boolean3.Type = "Cut"
boolean3.addObjects([body])
doc.recompute()

boolean4 = body6.newObject("PartDesign::Boolean", "Boolean003")
boolean4.Type = "Fuse"
boolean4.addObjects([body3])
doc.recompute()

boolean5 = body6.newObject("PartDesign::Boolean", "Boolean004")
boolean5.Type = "Fuse"
boolean5.addObjects([body5])
doc.recompute()

chamfer = body6.newObject("PartDesign::Chamfer", "Chamfer")
chamfer.Base = (boolean5, edges_at(boolean5, [
    (35, 24.7, 23.95),
    (34, 23.7, 29.7),
    (35, 24.7, 85.19),
    (35, 24.7, 85.19),
    (35, 24.7, 85.19),
    (34, 23.7, 140.68),
    (35, 24.7, 144.305),
    (-35, 24.7, 144.305),
    (-34, 23.7, 140.68),
    (-35, 24.7, 85.19),
    (-35, 24.7, 85.19),
    (-35, 24.7, 85.19),
    (-34, 23.7, 29.7),
    (-35, 24.7, 23.95),
]))
chamfer.Size = 2.125
doc.recompute()

chamfer2 = body6.newObject("PartDesign::Chamfer", "Chamfer001")
chamfer2.Base = (chamfer, edges_at(chamfer, [
    (31.5, -22.25, 251.18),
    (31.5, -11.125, 256.18),
    (26.5, -22.25, 256.18),
    (21.5, -22.25, 251.18),
    (21.5, 0, 256.18),
    (21.5, 0, 256.18),
    (28.25, 22.25, 256.18),
    (28.25, 22.25, 256.18),
    (21.5, 22.25, 200.93),
    (-21.5, 22.25, 200.93),
    (-28.25, 22.25, 256.18),
    (-28.25, 22.25, 256.18),
    (-21.5, 0, 256.18),
    (-21.5, 0, 256.18),
    (-21.5, -22.25, 251.18),
    (-31.5, -22.25, 251.18),
    (-26.5, -22.25, 256.18),
    (-31.5, -11.125, 256.18),
]))
chamfer2.Size = 2.125

# Sketch on YZ plane
sketch14 = body6.newObject("Sketcher::SketchObject", "Sketch013")
sketch14.AttachmentSupport = (doc.getObject("YZ_Plane005"), [""])
sketch14.MapMode = "FlatFace"
sketch14.AttachmentOffset = App.Placement(Vector(0, 0, -35), App.Rotation())
sketch14.addGeometry(Part.Circle(Vector(10, 102, 0), Vector(0, 0, 1), 6), False)
sketch14.addGeometry(Part.LineSegment(Vector(6, 87, 0), Vector(6, 75, 0)), False)
sketch14.addGeometry(Part.LineSegment(Vector(6, 75, 0), Vector(-1, 75, 0)), False)
sketch14.addGeometry(Part.LineSegment(Vector(-1, 75, 0), Vector(-1, 87, 0)), False)
sketch14.addGeometry(Part.LineSegment(Vector(-1, 87, 0), Vector(6, 87, 0)), False)
sketch14.addConstraint(Sketcher.Constraint("Coincident", 1, 2, 2, 1))
sketch14.addConstraint(Sketcher.Constraint("Coincident", 2, 2, 3, 1))
sketch14.addConstraint(Sketcher.Constraint("Coincident", 3, 2, 4, 1))
sketch14.addConstraint(Sketcher.Constraint("Coincident", 4, 2, 1, 1))
sketch14.addConstraint(Sketcher.Constraint("Vertical", 1))
sketch14.addConstraint(Sketcher.Constraint("Horizontal", 2))
sketch14.addConstraint(Sketcher.Constraint("Vertical", 3))
sketch14.addConstraint(Sketcher.Constraint("Horizontal", 4))
sketch14.addConstraint(Sketcher.Constraint("Diameter", 0, Q("11 mm")))
sketch14.addConstraint(Sketcher.Constraint("DistanceX", 2, 2, 2, 1, Q("7 mm")))
sketch14.addConstraint(Sketcher.Constraint("DistanceY", 1, 2, 1, 1, Q("12 mm")))
sketch14.addConstraint(Sketcher.Constraint("DistanceX", -1, 1, 0, 3, Q("9.7 mm")))
sketch14.addConstraint(Sketcher.Constraint("DistanceY", -1, 1, 0, 3, Q("101.7 mm")))
sketch14.addConstraint(Sketcher.Constraint("DistanceX", -1, 1, 1, 2, Q("5.84 mm")))
sketch14.addConstraint(Sketcher.Constraint("DistanceY", -1, 1, 1, 2, Q("75.38 mm")))
pocket2 = body6.newObject("PartDesign::Pocket", "Pocket001")
pocket2.Profile = sketch14
pocket2.Length = 5
pocket2.Reversed = True

doc.recompute()
